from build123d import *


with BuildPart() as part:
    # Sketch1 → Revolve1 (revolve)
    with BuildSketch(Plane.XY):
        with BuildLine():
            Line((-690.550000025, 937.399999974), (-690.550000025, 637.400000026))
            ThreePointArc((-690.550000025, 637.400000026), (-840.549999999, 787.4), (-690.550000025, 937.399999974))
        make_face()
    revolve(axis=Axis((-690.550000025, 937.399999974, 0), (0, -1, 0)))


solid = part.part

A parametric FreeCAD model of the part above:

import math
import FreeCAD as App
import Part
import Sketcher

doc = App.newDocument("Part")
params = doc.addObject("Spreadsheet::Sheet", "Params")
for row, (alias, value) in enumerate([
    ("sketch1_radius", "150 mm"),
    ("revolution_angle", "360 deg"),
], start=1):
    params.set(f"A{row}", alias)
    params.set(f"B{row}", "=" + value)
    params.setAlias(f"B{row}", alias)

body = doc.addObject("PartDesign::Body", "Body")

sketch1 = body.newObject("Sketcher::SketchObject", "Sketch")
sketch1.AttachmentSupport = (doc.getObject("XY_Plane"), [""])
sketch1.MapMode = "FlatFace"
sketch1.addGeometry([
    Part.LineSegment(App.Vector(-690.55, 637.4, 0), App.Vector(-690.55, 937.4, 0)),
    Part.ArcOfCircle(Part.Circle(App.Vector(-690.55, 787.4, 0), App.Vector(0, 0, 1), 150), math.radians(90), math.radians(270)),
], False)
sketch1.addGeometry(Part.LineSegment(App.Vector(-690.55, 937.4, 0), App.Vector(-690.55, 637.4, 0)), True)
sketch1.addConstraint([
    Sketcher.Constraint("Coincident", 0, 1, 1, 2),
    Sketcher.Constraint("Coincident", 1, 1, 0, 2),
    Sketcher.Constraint("Vertical", 0),
    Sketcher.Constraint("Vertical", 2),
    Sketcher.Constraint("Coincident", 2, 1, 1, 1),
    Sketcher.Constraint("Vertical", 1, 3, 0, 1),
    Sketcher.Constraint("Equal", 0, 2),
    Sketcher.Constraint("Radius", 1, 150.0),
    Sketcher.Constraint("DistanceY", -1, 1, 1, 3, 787.4),
    Sketcher.Constraint("DistanceX", 1, 3, -1, 1, 690.55),
])
sketch1.setExpression("Constraints[7]", "Params.sketch1_radius")
revolution = body.newObject("PartDesign::Revolution", "Revolution")
revolution.Profile = sketch1
revolution.ReferenceAxis = (sketch1, ["Axis0"])
revolution.setExpression("Angle", "Params.revolution_angle")

doc.recompute()
